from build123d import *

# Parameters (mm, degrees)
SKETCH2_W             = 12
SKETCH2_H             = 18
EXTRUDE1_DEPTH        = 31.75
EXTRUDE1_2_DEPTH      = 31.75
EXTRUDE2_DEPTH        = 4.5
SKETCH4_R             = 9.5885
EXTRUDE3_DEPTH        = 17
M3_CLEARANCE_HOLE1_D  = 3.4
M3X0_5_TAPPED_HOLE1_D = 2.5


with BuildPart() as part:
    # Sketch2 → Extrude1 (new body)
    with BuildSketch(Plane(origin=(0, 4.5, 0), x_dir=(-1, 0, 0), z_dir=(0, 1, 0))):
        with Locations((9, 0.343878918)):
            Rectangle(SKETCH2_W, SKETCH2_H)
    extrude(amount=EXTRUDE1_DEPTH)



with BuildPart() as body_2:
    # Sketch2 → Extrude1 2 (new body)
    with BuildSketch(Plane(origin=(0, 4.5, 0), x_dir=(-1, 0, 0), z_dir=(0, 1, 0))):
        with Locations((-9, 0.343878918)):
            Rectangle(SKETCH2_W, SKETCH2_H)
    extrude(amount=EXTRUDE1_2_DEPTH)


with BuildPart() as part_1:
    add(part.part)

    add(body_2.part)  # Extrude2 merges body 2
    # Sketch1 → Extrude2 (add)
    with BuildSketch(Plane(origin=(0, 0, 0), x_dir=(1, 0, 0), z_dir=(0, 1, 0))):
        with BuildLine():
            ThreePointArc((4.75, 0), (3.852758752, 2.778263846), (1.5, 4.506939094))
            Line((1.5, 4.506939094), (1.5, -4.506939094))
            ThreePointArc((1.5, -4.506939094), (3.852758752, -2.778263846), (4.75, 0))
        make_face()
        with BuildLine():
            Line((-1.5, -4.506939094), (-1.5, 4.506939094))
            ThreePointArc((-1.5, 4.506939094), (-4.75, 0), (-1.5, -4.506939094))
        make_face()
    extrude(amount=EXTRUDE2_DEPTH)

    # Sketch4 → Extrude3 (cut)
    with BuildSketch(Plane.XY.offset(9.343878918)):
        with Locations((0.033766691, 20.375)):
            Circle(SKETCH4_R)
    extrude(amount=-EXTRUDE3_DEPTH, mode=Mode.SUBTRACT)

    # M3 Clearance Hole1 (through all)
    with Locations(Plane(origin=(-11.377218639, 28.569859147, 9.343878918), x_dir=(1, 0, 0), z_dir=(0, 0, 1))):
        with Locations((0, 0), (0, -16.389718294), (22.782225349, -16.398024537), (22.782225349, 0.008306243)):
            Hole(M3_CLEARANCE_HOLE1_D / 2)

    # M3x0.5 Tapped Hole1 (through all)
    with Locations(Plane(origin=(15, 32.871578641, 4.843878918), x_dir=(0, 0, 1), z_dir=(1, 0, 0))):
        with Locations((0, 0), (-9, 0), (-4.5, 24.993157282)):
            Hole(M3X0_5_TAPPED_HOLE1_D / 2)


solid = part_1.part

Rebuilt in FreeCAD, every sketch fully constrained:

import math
import FreeCAD as App
import Part
import Sketcher
from FreeCAD import Vector

doc = App.newDocument("Part")
body = doc.addObject("PartDesign::Body", "Body")

# Sketch on XZ plane
sketch1 = doc.addObject("Sketcher::SketchObject", "Sketch")
body.addObject(sketch1)
sketch1.AttachmentSupport = (doc.XZ_Plane, [""])
sketch1.MapMode = "FlatFace"
sketch1.AttachmentOffset = App.Placement(Vector(0, 0, -4.5), App.Rotation())
sketch1.addGeometry([
    Part.LineSegment(Vector(-3, 9.343879, 0), Vector(-3, -8.656121, 0)),
    Part.LineSegment(Vector(-3, -8.656121, 0), Vector(-15, -8.656121, 0)),
    Part.LineSegment(Vector(-15, -8.656121, 0), Vector(-15, 9.343879, 0)),
    Part.LineSegment(Vector(-15, 9.343879, 0), Vector(-3, 9.343879, 0)),
], False)
sketch1.addConstraint([
    Sketcher.Constraint("Coincident", 0, 2, 1, 1),
    Sketcher.Constraint("Coincident", 1, 2, 2, 1),
    Sketcher.Constraint("Coincident", 2, 2, 3, 1),
    Sketcher.Constraint("Coincident", 3, 2, 0, 1),
    Sketcher.Constraint("Vertical", 0),
    Sketcher.Constraint("Horizontal", 1),
    Sketcher.Constraint("Vertical", 2),
    Sketcher.Constraint("Horizontal", 3),
    Sketcher.Constraint("DistanceX", 1, 2, 1, 1, 12.0),
    Sketcher.Constraint("DistanceY", 0, 2, 0, 1, 18.0),
    Sketcher.Constraint("DistanceX", 0, 2, -1, 1, 3.0),
    Sketcher.Constraint("DistanceY", 0, 2, -1, 1, 8.656121),
])
pad1 = doc.addObject("PartDesign::Pad", "Pad")
body.addObject(pad1)
pad1.Profile = sketch1
pad1.Length = 31.75
pad1.Reversed = True
body2 = doc.addObject("PartDesign::Body", "Body001")

# Sketch on XZ plane
sketch2 = doc.addObject("Sketcher::SketchObject", "Sketch001")
body2.addObject(sketch2)
sketch2.AttachmentSupport = (doc.getObject("XZ_Plane001"), [""])
sketch2.MapMode = "FlatFace"
sketch2.AttachmentOffset = App.Placement(Vector(0, 0, -4.5), App.Rotation())
sketch2.addGeometry([
    Part.LineSegment(Vector(15, 9.343879, 0), Vector(15, -8.656121, 0)),
    Part.LineSegment(Vector(15, -8.656121, 0), Vector(3, -8.656121, 0)),
    Part.LineSegment(Vector(3, -8.656121, 0), Vector(3, 9.343879, 0)),
    Part.LineSegment(Vector(3, 9.343879, 0), Vector(15, 9.343879, 0)),
], False)
sketch2.addConstraint([
    Sketcher.Constraint("Coincident", 0, 2, 1, 1),
    Sketcher.Constraint("Coincident", 1, 2, 2, 1),
    Sketcher.Constraint("Coincident", 2, 2, 3, 1),
    Sketcher.Constraint("Coincident", 3, 2, 0, 1),
    Sketcher.Constraint("Vertical", 0),
    Sketcher.Constraint("Horizontal", 1),
    Sketcher.Constraint("Vertical", 2),
    Sketcher.Constraint("Horizontal", 3),
    Sketcher.Constraint("DistanceX", 1, 2, 1, 1, 12.0),
    Sketcher.Constraint("DistanceY", 0, 2, 0, 1, 18.0),
    Sketcher.Constraint("DistanceX", -1, 1, 0, 2, 15.0),
    Sketcher.Constraint("DistanceY", 0, 2, -1, 1, 8.656121),
])
pad2 = doc.addObject("PartDesign::Pad", "Pad001")
body2.addObject(pad2)
pad2.Profile = sketch2
pad2.Length = 31.75
pad2.Reversed = True
body.AllowCompound = True
doc.recompute()

boolean = doc.addObject("PartDesign::Boolean", "Boolean")
body.addObject(boolean)
boolean.Type = "Fuse"
boolean.addObjects([body2])

# Sketch on XZ plane
sketch3 = doc.addObject("Sketcher::SketchObject", "Sketch002")
body.addObject(sketch3)
sketch3.AttachmentSupport = (doc.XZ_Plane, [""])
sketch3.MapMode = "FlatFace"
sketch3.addGeometry([
    Part.ArcOfCircle(Part.Circle(Vector(0, 0, 0), Vector(0, 0, 1), 4.75), math.radians(-71.59152), math.radians(0)),  # 0
    Part.LineSegment(Vector(1.5, -4.506939, 0), Vector(1.5, 4.506939, 0)),  # 1
    Part.ArcOfCircle(Part.Circle(Vector(0, 0, 0), Vector(0, 0, 1), 4.75), math.radians(0), math.radians(71.59152)),  # 2
    Part.LineSegment(Vector(-1.5, 4.506939, 0), Vector(-1.5, -4.506939, 0)),  # 3
    Part.ArcOfCircle(Part.Circle(Vector(0, 0, 0), Vector(0, 0, 1), 4.75), math.radians(108.40848), math.radians(251.59152)),  # 4
], False)
sketch3.addConstraint([
    Sketcher.Constraint("Coincident", 0, 1, 1, 1),
    Sketcher.Constraint("Coincident", 1, 2, 2, 2),
    Sketcher.Constraint("Tangent", 2, 1, 0, 2),
    Sketcher.Constraint("Coincident", 3, 1, 4, 1),
    Sketcher.Constraint("Coincident", 4, 2, 3, 2),
    Sketcher.Constraint("Vertical", 1),
    Sketcher.Constraint("Vertical", 3),
    Sketcher.Constraint("Coincident", 0, 3, -1, 1),
    Sketcher.Constraint("Coincident", 4, 3, -1, 1),
    Sketcher.Constraint("Equal", 0, 2),
    Sketcher.Constraint("Equal", 2, 4),
    Sketcher.Constraint("PointOnObject", 2, 1, -1),
    Sketcher.Constraint("Horizontal", 1, 2, 3, 1),
    Sketcher.Constraint("Radius", 0, 4.75),
    Sketcher.Constraint("DistanceX", 3, 1, 1, 2, 3.0),
])
pad3 = doc.addObject("PartDesign::Pad", "Pad002")
body.addObject(pad3)
pad3.Profile = sketch3
pad3.Length = 4.5
pad3.Reversed = True

# Sketch on XY plane
sketch4 = doc.addObject("Sketcher::SketchObject", "Sketch003")
body.addObject(sketch4)
sketch4.AttachmentSupport = (doc.XY_Plane, [""])
sketch4.MapMode = "FlatFace"
sketch4.AttachmentOffset = App.Placement(Vector(0, 0, 9.343879), App.Rotation())
sketch4.addGeometry(Part.Circle(Vector(0.033767, 20.375, 0), Vector(0, 0, 1), 9.5885), False)
sketch4.addConstraint([
    Sketcher.Constraint("Diameter", 0, 19.177),
    Sketcher.Constraint("DistanceY", -1, 1, 0, 3, 20.375),
    Sketcher.Constraint("DistanceX", -1, 1, 0, 3, 0.033767),
])
pocket1 = doc.addObject("PartDesign::Pocket", "Pocket")
body.addObject(pocket1)
pocket1.Profile = sketch4
pocket1.Length = 17

# Sketch on XY plane
sketch5 = doc.addObject("Sketcher::SketchObject", "Sketch004")
body.addObject(sketch5)
sketch5.AttachmentSupport = (doc.XY_Plane, [""])
sketch5.MapMode = "FlatFace"
sketch5.AttachmentOffset = App.Placement(Vector(0, 0, 9.343879), App.Rotation())
sketch5.addGeometry([
    Part.Circle(Vector(-11.377219, 28.569859, 0), Vector(0, 0, 1), 1.7),
    Part.Circle(Vector(-11.377219, 12.180141, 0), Vector(0, 0, 1), 1.7),
    Part.Circle(Vector(11.405007, 12.171835, 0), Vector(0, 0, 1), 1.7),
    Part.Circle(Vector(11.405007, 28.578165, 0), Vector(0, 0, 1), 1.7),
], False)
sketch5.addConstraint([
    Sketcher.Constraint("Equal", 0, 1),
    Sketcher.Constraint("Equal", 1, 2),
    Sketcher.Constraint("Equal", 2, 3),
    Sketcher.Constraint("Vertical", 0, 3, 1, 3),
    Sketcher.Constraint("Vertical", 2, 3, 3, 3),
    Sketcher.Constraint("Diameter", 0, 3.4),
    Sketcher.Constraint("DistanceX", 0, 3, -1, 1, 11.377219),
    Sketcher.Constraint("DistanceY", -1, 1, 0, 3, 28.569859),
    Sketcher.Constraint("DistanceY", -1, 1, 1, 3, 12.180141),
    Sketcher.Constraint("DistanceY", 2, 3, 3, 3, 16.406331),
    Sketcher.Constraint("DistanceX", -1, 1, 2, 3, 11.405007),
    Sketcher.Constraint("DistanceY", -1, 1, 2, 3, 12.171835),
])
doc.recompute()
hole = doc.addObject("PartDesign::Hole", "Hole")
body.addObject(hole)
hole.Profile = sketch5
hole.ThreadType = "None"
hole.Diameter = 3.4
hole.DepthType = "ThroughAll"

# Sketch on YZ plane
sketch6 = doc.addObject("Sketcher::SketchObject", "Sketch005")
body.addObject(sketch6)
sketch6.AttachmentSupport = (doc.YZ_Plane, [""])
sketch6.MapMode = "FlatFace"
sketch6.AttachmentOffset = App.Placement(Vector(0, 0, 15), App.Rotation())
sketch6.addGeometry([
    Part.Circle(Vector(32.871579, 4.843879, 0), Vector(0, 0, 1), 1.25),
    Part.Circle(Vector(32.871579, -4.156121, 0), Vector(0, 0, 1), 1.25),
    Part.Circle(Vector(7.878421, 0.343879, 0), Vector(0, 0, 1), 1.25),
], False)
sketch6.addConstraint([
    Sketcher.Constraint("Equal", 0, 1),
    Sketcher.Constraint("Equal", 1, 2),
    Sketcher.Constraint("Vertical", 0, 3, 1, 3),
    Sketcher.Constraint("Diameter", 0, 2.5),
    Sketcher.Constraint("DistanceY", 1, 3, 0, 3, 9.0),
    Sketcher.Constraint("DistanceY", 2, 3, 0, 3, 4.5),
    Sketcher.Constraint("DistanceX", -1, 1, 0, 3, 32.871579),
    Sketcher.Constraint("DistanceY", -1, 1, 0, 3, 4.843879),
    Sketcher.Constraint("DistanceX", -1, 1, 2, 3, 7.878421),
])
doc.recompute()
hole2 = doc.addObject("PartDesign::Hole", "Hole001")
body.addObject(hole2)
hole2.Profile = sketch6
hole2.ThreadType = "None"
hole2.Diameter = 2.5
hole2.DepthType = "ThroughAll"

doc.recompute()
